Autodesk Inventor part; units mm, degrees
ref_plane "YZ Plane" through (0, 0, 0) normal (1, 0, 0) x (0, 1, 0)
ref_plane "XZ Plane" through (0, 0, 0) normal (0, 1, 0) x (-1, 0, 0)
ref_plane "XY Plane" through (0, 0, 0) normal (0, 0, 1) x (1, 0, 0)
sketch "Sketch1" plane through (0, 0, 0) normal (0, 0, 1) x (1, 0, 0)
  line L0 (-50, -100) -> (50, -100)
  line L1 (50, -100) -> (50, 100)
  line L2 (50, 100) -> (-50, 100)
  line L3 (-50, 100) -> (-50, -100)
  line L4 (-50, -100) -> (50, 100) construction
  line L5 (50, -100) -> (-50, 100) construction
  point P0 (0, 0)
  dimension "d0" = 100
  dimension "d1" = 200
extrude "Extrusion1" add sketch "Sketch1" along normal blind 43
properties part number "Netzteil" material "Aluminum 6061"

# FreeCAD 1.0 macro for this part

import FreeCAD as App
import Part
import Sketcher

doc = App.newDocument("Part")
body = doc.addObject("PartDesign::Body", "Body")

# Sketch on XY plane
sketch1 = body.newObject("Sketcher::SketchObject", "Sketch")
sketch1.AttachmentSupport = (doc.getObject("XY_Plane"), [""])
sketch1.MapMode = "FlatFace"
sketch1.addGeometry(Part.LineSegment(App.Vector(-50, 100, 0), App.Vector(-50, -100, 0)), False)
sketch1.addGeometry(Part.LineSegment(App.Vector(-50, -100, 0), App.Vector(50, -100, 0)), False)
sketch1.addGeometry(Part.LineSegment(App.Vector(50, -100, 0), App.Vector(50, 100, 0)), False)
sketch1.addGeometry(Part.LineSegment(App.Vector(50, 100, 0), App.Vector(-50, 100, 0)), False)
sketch1.addConstraint(Sketcher.Constraint("Coincident", 0, 2, 1, 1))
sketch1.addConstraint(Sketcher.Constraint("Coincident", 1, 2, 2, 1))
sketch1.addConstraint(Sketcher.Constraint("Coincident", 2, 2, 3, 1))
sketch1.addConstraint(Sketcher.Constraint("Coincident", 3, 2, 0, 1))
sketch1.addConstraint(Sketcher.Constraint("Vertical", 0))
sketch1.addConstraint(Sketcher.Constraint("Horizontal", 1))
sketch1.addConstraint(Sketcher.Constraint("Vertical", 2))
sketch1.addConstraint(Sketcher.Constraint("Horizontal", 3))
sketch1.addConstraint(Sketcher.Constraint("Symmetric", 0, 2, 2, 2, -1, 1))
sketch1.addConstraint(Sketcher.Constraint("DistanceX", 1, 1, 1, 2, 100.0))
sketch1.addConstraint(Sketcher.Constraint("DistanceY", 0, 2, 0, 1, 200.0))
pad1 = body.newObject("PartDesign::Pad", "Pad")
pad1.Profile = sketch1
pad1.Length = 43

doc.recompute()
